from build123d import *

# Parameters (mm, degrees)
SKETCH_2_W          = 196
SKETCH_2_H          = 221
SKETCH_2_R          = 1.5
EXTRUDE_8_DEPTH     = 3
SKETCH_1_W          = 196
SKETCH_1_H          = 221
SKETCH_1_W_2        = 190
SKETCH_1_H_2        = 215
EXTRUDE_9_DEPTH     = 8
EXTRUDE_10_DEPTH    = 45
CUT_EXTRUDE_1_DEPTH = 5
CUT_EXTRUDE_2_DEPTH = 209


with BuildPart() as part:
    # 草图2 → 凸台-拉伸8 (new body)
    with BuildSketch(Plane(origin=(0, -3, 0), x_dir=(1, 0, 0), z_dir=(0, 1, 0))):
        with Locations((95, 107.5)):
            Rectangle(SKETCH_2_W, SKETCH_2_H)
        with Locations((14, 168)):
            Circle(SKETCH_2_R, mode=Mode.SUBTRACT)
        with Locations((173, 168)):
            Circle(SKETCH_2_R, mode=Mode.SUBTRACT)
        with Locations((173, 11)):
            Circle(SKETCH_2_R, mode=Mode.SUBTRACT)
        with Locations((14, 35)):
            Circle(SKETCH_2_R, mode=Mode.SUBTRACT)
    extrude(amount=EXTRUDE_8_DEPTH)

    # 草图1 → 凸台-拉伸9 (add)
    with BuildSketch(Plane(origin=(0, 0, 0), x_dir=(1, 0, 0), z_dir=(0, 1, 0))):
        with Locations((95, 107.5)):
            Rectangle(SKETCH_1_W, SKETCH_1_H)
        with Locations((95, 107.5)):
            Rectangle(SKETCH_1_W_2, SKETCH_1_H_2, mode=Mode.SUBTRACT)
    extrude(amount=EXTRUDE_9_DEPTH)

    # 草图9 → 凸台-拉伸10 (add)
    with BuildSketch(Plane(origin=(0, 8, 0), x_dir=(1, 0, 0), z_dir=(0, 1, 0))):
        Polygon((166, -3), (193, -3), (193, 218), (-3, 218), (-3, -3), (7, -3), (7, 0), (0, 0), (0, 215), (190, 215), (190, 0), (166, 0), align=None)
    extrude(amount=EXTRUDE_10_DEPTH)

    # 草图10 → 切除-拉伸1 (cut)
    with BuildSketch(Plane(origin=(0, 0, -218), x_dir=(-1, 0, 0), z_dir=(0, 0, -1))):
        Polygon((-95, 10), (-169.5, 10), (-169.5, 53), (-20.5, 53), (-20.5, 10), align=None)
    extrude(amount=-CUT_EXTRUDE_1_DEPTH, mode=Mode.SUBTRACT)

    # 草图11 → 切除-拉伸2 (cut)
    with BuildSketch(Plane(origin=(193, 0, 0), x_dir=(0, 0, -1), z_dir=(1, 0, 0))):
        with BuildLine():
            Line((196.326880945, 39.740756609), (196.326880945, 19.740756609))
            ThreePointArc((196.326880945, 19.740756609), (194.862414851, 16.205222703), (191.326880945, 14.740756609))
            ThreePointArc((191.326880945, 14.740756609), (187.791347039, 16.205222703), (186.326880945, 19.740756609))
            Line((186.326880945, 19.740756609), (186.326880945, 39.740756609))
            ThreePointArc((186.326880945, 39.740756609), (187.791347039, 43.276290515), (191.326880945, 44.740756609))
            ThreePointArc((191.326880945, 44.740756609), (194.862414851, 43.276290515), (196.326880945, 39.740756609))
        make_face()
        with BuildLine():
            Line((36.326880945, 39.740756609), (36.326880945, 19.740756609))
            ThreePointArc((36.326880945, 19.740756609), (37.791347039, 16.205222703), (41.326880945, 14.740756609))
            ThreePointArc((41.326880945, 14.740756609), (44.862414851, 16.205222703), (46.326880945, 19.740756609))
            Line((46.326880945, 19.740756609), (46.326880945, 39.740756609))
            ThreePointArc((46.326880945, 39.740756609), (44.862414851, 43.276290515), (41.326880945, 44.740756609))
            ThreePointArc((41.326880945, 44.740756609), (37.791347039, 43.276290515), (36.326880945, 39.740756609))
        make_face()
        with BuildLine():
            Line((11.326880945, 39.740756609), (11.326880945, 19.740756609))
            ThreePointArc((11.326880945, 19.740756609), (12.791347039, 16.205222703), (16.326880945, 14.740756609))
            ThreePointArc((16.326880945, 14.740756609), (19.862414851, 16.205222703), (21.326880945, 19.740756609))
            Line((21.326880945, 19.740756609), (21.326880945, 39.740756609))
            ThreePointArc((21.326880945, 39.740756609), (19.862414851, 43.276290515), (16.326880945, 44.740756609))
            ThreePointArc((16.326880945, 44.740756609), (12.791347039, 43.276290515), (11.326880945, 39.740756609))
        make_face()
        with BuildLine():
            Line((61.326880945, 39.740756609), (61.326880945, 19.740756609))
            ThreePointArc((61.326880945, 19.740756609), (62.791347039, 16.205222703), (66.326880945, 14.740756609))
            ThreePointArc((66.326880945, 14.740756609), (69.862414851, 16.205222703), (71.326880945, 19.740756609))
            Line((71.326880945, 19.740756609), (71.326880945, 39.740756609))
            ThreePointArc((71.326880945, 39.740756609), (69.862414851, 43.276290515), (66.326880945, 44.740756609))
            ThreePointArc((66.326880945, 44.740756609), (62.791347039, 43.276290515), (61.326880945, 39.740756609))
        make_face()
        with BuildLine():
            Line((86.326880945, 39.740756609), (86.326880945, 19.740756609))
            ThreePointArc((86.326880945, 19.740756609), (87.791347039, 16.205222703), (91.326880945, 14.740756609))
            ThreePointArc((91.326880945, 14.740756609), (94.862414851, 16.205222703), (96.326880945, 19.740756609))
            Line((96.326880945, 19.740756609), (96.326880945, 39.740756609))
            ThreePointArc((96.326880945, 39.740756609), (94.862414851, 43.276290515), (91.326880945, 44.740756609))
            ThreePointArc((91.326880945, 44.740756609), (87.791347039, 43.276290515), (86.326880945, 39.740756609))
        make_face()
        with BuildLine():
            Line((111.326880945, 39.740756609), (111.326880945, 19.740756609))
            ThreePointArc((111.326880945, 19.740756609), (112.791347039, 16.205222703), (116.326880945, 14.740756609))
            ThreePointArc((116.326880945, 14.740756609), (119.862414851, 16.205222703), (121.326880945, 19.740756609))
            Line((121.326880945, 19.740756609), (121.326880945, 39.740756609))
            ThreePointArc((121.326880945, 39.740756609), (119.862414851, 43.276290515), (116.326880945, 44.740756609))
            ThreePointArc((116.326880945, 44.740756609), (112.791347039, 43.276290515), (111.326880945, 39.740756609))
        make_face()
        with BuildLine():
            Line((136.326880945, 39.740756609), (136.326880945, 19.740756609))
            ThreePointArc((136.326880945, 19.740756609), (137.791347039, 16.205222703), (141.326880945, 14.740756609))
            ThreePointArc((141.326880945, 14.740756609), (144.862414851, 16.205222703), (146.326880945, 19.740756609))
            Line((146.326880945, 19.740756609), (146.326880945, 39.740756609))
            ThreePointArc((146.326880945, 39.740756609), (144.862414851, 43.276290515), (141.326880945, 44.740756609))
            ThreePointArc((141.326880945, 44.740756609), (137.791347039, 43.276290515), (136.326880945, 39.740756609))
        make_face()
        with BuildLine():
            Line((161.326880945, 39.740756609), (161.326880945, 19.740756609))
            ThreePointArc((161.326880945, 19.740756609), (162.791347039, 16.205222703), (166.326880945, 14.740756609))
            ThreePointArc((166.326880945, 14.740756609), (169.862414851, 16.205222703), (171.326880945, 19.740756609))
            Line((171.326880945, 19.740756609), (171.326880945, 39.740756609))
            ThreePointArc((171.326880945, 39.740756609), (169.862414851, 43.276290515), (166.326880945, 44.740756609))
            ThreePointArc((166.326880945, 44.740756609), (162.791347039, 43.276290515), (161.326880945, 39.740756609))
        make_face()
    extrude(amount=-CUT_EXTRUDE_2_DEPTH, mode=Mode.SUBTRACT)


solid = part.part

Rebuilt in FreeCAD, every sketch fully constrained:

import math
import FreeCAD as App
import Part
import Sketcher

V = App.Vector


def add_polygon(sketch, points):
    """Adds a closed chain of lines whose ends are joined by coincident constraints."""
    first, n = sketch.GeometryCount, len(points)
    for a, b in zip(points, points[1:] + points[:1]):
        sketch.addGeometry(Part.LineSegment(App.Vector(*a, 0), App.Vector(*b, 0)), False)
    for i in range(n):
        sketch.addConstraint(Sketcher.Constraint("Coincident", first + i, 2, first + (i + 1) % n, 1))

doc = App.newDocument("Part")
body = doc.addObject("PartDesign::Body", "Body")

# Sketch on XZ plane
sketch1 = doc.addObject("Sketcher::SketchObject", "Sketch")
body.addObject(sketch1)
sketch1.AttachmentSupport = (doc.XZ_Plane, [""])
sketch1.MapMode = "FlatFace"
sketch1.AttachmentOffset = App.Placement(V(0, 0, 3), App.Rotation())
add_polygon(sketch1, [(-3, -218), (-3, 3), (193, 3), (193, -218)])  # lines 0-3
sketch1.addGeometry(Part.Circle(V(14, -35, 0), V(0, 0, 1), 1.5), False)  # 4
sketch1.addGeometry(Part.Circle(V(173, -11, 0), V(0, 0, 1), 1.5), False)  # 5
sketch1.addGeometry(Part.Circle(V(14, -168, 0), V(0, 0, 1), 1.5), False)  # 6
sketch1.addGeometry(Part.Circle(V(173, -168, 0), V(0, 0, 1), 1.5), False)  # 7
sketch1.addConstraint([
    Sketcher.Constraint("Vertical", 0),
    Sketcher.Constraint("Horizontal", 1),
    Sketcher.Constraint("Vertical", 2),
    Sketcher.Constraint("Horizontal", 3),
    Sketcher.Constraint("Equal", 4, 5),
    Sketcher.Constraint("Equal", 5, 6),
    Sketcher.Constraint("Equal", 6, 7),
    Sketcher.Constraint("Horizontal", 6, 3, 7, 3),
    Sketcher.Constraint("Vertical", 4, 3, 6, 3),
    Sketcher.Constraint("Vertical", 5, 3, 7, 3),
    Sketcher.Constraint("Diameter", 4, 3.0),
    Sketcher.Constraint("DistanceX", 1, 1, 1, 2, 196.0),
    Sketcher.Constraint("DistanceY", 0, 1, 0, 2, 221.0),
    Sketcher.Constraint("DistanceX", -1, 1, 4, 3, 14.0),
    Sketcher.Constraint("DistanceY", 4, 3, -1, 1, 35.0),
    Sketcher.Constraint("DistanceX", -1, 1, 5, 3, 173.0),
    Sketcher.Constraint("DistanceY", 5, 3, -1, 1, 11.0),
    Sketcher.Constraint("DistanceY", 6, 3, -1, 1, 168.0),
    Sketcher.Constraint("DistanceX", 0, 2, -1, 1, 3.0),
    Sketcher.Constraint("DistanceY", -1, 1, 0, 2, 3.0),
])
pad1 = doc.addObject("PartDesign::Pad", "Pad")
body.addObject(pad1)
pad1.Profile = sketch1
pad1.Length = 3
pad1.Reversed = True

# Sketch on XZ plane
sketch2 = doc.addObject("Sketcher::SketchObject", "Sketch001")
body.addObject(sketch2)
sketch2.AttachmentSupport = (doc.XZ_Plane, [""])
sketch2.MapMode = "FlatFace"
add_polygon(sketch2, [(-3, -218), (-3, 3), (193, 3), (193, -218)])  # lines 0-3
add_polygon(sketch2, [(190, 0), (0, 0), (0, -215), (190, -215)])  # lines 4-7
sketch2.addConstraint([
    Sketcher.Constraint("Vertical", 0),
    Sketcher.Constraint("Horizontal", 1),
    Sketcher.Constraint("Vertical", 2),
    Sketcher.Constraint("Horizontal", 3),
    Sketcher.Constraint("Horizontal", 4),
    Sketcher.Constraint("Vertical", 5),
    Sketcher.Constraint("Horizontal", 6),
    Sketcher.Constraint("Vertical", 7),
    Sketcher.Constraint("Coincident", 4, 2, -1, 1),
    Sketcher.Constraint("DistanceX", 1, 1, 1, 2, 196.0),
    Sketcher.Constraint("DistanceX", 4, 2, 4, 1, 190.0),
    Sketcher.Constraint("DistanceY", 0, 1, 0, 2, 221.0),
    Sketcher.Constraint("DistanceY", 5, 2, 5, 1, 215.0),
    Sketcher.Constraint("DistanceX", 0, 2, -1, 1, 3.0),
    Sketcher.Constraint("DistanceY", -1, 1, 0, 2, 3.0),
])
pad2 = doc.addObject("PartDesign::Pad", "Pad001")
body.addObject(pad2)
pad2.Profile = sketch2
pad2.Length = 8
pad2.Reversed = True

# Sketch on XZ plane
sketch3 = doc.addObject("Sketcher::SketchObject", "Sketch002")
body.addObject(sketch3)
sketch3.AttachmentSupport = (doc.XZ_Plane, [""])
sketch3.MapMode = "FlatFace"
sketch3.AttachmentOffset = App.Placement(V(0, 0, -8), App.Rotation())
add_polygon(sketch3, [(166, 3), (193, 3), (193, -218), (-3, -218), (-3, 3), (7, 3), (7, 0), (0, 0), (0, -215), (190, -215), (190, 0), (166, 0)])  # lines 0-11
sketch3.addConstraint([
    Sketcher.Constraint("Horizontal", 0),
    Sketcher.Constraint("Vertical", 1),
    Sketcher.Constraint("Horizontal", 2),
    Sketcher.Constraint("Vertical", 3),
    Sketcher.Constraint("Horizontal", 4),
    Sketcher.Constraint("Vertical", 5),
    Sketcher.Constraint("Horizontal", 6),
    Sketcher.Constraint("Vertical", 7),
    Sketcher.Constraint("Horizontal", 8),
    Sketcher.Constraint("Vertical", 9),
    Sketcher.Constraint("Horizontal", 10),
    Sketcher.Constraint("Vertical", 11),
    Sketcher.Constraint("Coincident", 6, 2, -1, 1),
    Sketcher.Constraint("PointOnObject", 9, 2, -1),
    Sketcher.Constraint("Horizontal", 0, 2, 3, 2),
    Sketcher.Constraint("DistanceX", 0, 1, 0, 2, 27.0),
    Sketcher.Constraint("DistanceX", 2, 2, 2, 1, 196.0),
    Sketcher.Constraint("DistanceX", 4, 1, 4, 2, 10.0),
    Sketcher.Constraint("DistanceX", 6, 2, 6, 1, 7.0),
    Sketcher.Constraint("DistanceX", 8, 1, 8, 2, 190.0),
    Sketcher.Constraint("DistanceY", 1, 2, 1, 1, 221.0),
    Sketcher.Constraint("DistanceY", 5, 2, 5, 1, 3.0),
    Sketcher.Constraint("DistanceY", 7, 2, 7, 1, 215.0),
])
pad3 = doc.addObject("PartDesign::Pad", "Pad002")
body.addObject(pad3)
pad3.Profile = sketch3
pad3.Length = 45
pad3.Reversed = True

# Sketch on XY plane
sketch4 = doc.addObject("Sketcher::SketchObject", "Sketch003")
body.addObject(sketch4)
sketch4.AttachmentSupport = (doc.XY_Plane, [""])
sketch4.MapMode = "FlatFace"
sketch4.AttachmentOffset = App.Placement(V(0, 0, -218), App.Rotation())
add_polygon(sketch4, [(170, 10), (20, 10), (20, 53), (170, 53)])  # lines 0-3
sketch4.addConstraint([
    Sketcher.Constraint("Horizontal", 0),
    Sketcher.Constraint("Vertical", 1),
    Sketcher.Constraint("Horizontal", 2),
    Sketcher.Constraint("Vertical", 3),
    Sketcher.Constraint("DistanceX", 0, 2, 0, 1, 149.0),
    Sketcher.Constraint("DistanceY", 1, 1, 1, 2, 43.0),
    Sketcher.Constraint("DistanceY", -1, 1, 0, 2, 10.0),
    Sketcher.Constraint("DistanceX", -1, 1, 0, 2, 20.5),
])
pocket1 = doc.addObject("PartDesign::Pocket", "Pocket")
body.addObject(pocket1)
pocket1.Profile = sketch4
pocket1.Length = 5
pocket1.Reversed = True

# Sketch on YZ plane
sketch5 = doc.addObject("Sketcher::SketchObject", "Sketch004")
body.addObject(sketch5)
sketch5.AttachmentSupport = (doc.YZ_Plane, [""])
sketch5.MapMode = "FlatFace"
sketch5.AttachmentOffset = App.Placement(V(0, 0, 193), App.Rotation())
sketch5.addGeometry([
    Part.LineSegment(V(20, -196, 0), V(40, -196, 0)),  # 0
    Part.ArcOfCircle(Part.Circle(V(40, -191, 0), V(0, 0, 1), 5), math.radians(-90), math.radians(0)),  # 1
    Part.ArcOfCircle(Part.Circle(V(40, -191, 0), V(0, 0, 1), 5), math.radians(0), math.radians(90)),  # 2
    Part.LineSegment(V(40, -186, 0), V(20, -186, 0)),  # 3
    Part.ArcOfCircle(Part.Circle(V(20, -191, 0), V(0, 0, 1), 5), math.radians(90), math.radians(180)),  # 4
    Part.ArcOfCircle(Part.Circle(V(20, -191, 0), V(0, 0, 1), 5), math.radians(180), math.radians(270)),  # 5
    Part.LineSegment(V(40, -36, 0), V(20, -36, 0)),  # 6
    Part.ArcOfCircle(Part.Circle(V(20, -41, 0), V(0, 0, 1), 5), math.radians(90), math.radians(180)),  # 7
    Part.ArcOfCircle(Part.Circle(V(20, -41, 0), V(0, 0, 1), 5), math.radians(180), math.radians(270)),  # 8
    Part.LineSegment(V(20, -46, 0), V(40, -46, 0)),  # 9
    Part.ArcOfCircle(Part.Circle(V(40, -41, 0), V(0, 0, 1), 5), math.radians(-90), math.radians(0)),  # 10
    Part.ArcOfCircle(Part.Circle(V(40, -41, 0), V(0, 0, 1), 5), math.radians(0), math.radians(90)),  # 11
    Part.LineSegment(V(40, -11, 0), V(20, -11, 0)),  # 12
    Part.ArcOfCircle(Part.Circle(V(20, -16, 0), V(0, 0, 1), 5), math.radians(90), math.radians(180)),  # 13
    Part.ArcOfCircle(Part.Circle(V(20, -16, 0), V(0, 0, 1), 5), math.radians(180), math.radians(270)),  # 14
    Part.LineSegment(V(20, -21, 0), V(40, -21, 0)),  # 15
    Part.ArcOfCircle(Part.Circle(V(40, -16, 0), V(0, 0, 1), 5), math.radians(-90), math.radians(0)),  # 16
    Part.ArcOfCircle(Part.Circle(V(40, -16, 0), V(0, 0, 1), 5), math.radians(0), math.radians(90)),  # 17
    Part.LineSegment(V(40, -61, 0), V(20, -61, 0)),  # 18
    Part.ArcOfCircle(Part.Circle(V(20, -66, 0), V(0, 0, 1), 5), math.radians(90), math.radians(180)),  # 19
    Part.ArcOfCircle(Part.Circle(V(20, -66, 0), V(0, 0, 1), 5), math.radians(180), math.radians(270)),  # 20
    Part.LineSegment(V(20, -71, 0), V(40, -71, 0)),  # 21
    Part.ArcOfCircle(Part.Circle(V(40, -66, 0), V(0, 0, 1), 5), math.radians(-90), math.radians(0)),  # 22
    Part.ArcOfCircle(Part.Circle(V(40, -66, 0), V(0, 0, 1), 5), math.radians(0), math.radians(90)),  # 23
    Part.LineSegment(V(40, -86, 0), V(20, -86, 0)),  # 24
    Part.ArcOfCircle(Part.Circle(V(20, -91, 0), V(0, 0, 1), 5), math.radians(90), math.radians(180)),  # 25
    Part.ArcOfCircle(Part.Circle(V(20, -91, 0), V(0, 0, 1), 5), math.radians(180), math.radians(270)),  # 26
    Part.LineSegment(V(20, -96, 0), V(40, -96, 0)),  # 27
    Part.ArcOfCircle(Part.Circle(V(40, -91, 0), V(0, 0, 1), 5), math.radians(-90), math.radians(0)),  # 28
    Part.ArcOfCircle(Part.Circle(V(40, -91, 0), V(0, 0, 1), 5), math.radians(0), math.radians(90)),  # 29
    Part.LineSegment(V(40, -111, 0), V(20, -111, 0)),  # 30
    Part.ArcOfCircle(Part.Circle(V(20, -116, 0), V(0, 0, 1), 5), math.radians(90), math.radians(180)),  # 31
    Part.ArcOfCircle(Part.Circle(V(20, -116, 0), V(0, 0, 1), 5), math.radians(180), math.radians(270)),  # 32
    Part.LineSegment(V(20, -121, 0), V(40, -121, 0)),  # 33
    Part.ArcOfCircle(Part.Circle(V(40, -116, 0), V(0, 0, 1), 5), math.radians(-90), math.radians(0)),  # 34
    Part.ArcOfCircle(Part.Circle(V(40, -116, 0), V(0, 0, 1), 5), math.radians(0), math.radians(90)),  # 35
    Part.LineSegment(V(40, -136, 0), V(20, -136, 0)),  # 36
    Part.ArcOfCircle(Part.Circle(V(20, -141, 0), V(0, 0, 1), 5), math.radians(90), math.radians(180)),  # 37
    Part.ArcOfCircle(Part.Circle(V(20, -141, 0), V(0, 0, 1), 5), math.radians(180), math.radians(270)),  # 38
    Part.LineSegment(V(20, -146, 0), V(40, -146, 0)),  # 39
    Part.ArcOfCircle(Part.Circle(V(40, -141, 0), V(0, 0, 1), 5), math.radians(-90), math.radians(0)),  # 40
    Part.ArcOfCircle(Part.Circle(V(40, -141, 0), V(0, 0, 1), 5), math.radians(0), math.radians(90)),  # 41
    Part.LineSegment(V(40, -161, 0), V(20, -161, 0)),  # 42
    Part.ArcOfCircle(Part.Circle(V(20, -166, 0), V(0, 0, 1), 5), math.radians(90), math.radians(180)),  # 43
    Part.ArcOfCircle(Part.Circle(V(20, -166, 0), V(0, 0, 1), 5), math.radians(180), math.radians(270)),  # 44
    Part.LineSegment(V(20, -171, 0), V(40, -171, 0)),  # 45
    Part.ArcOfCircle(Part.Circle(V(40, -166, 0), V(0, 0, 1), 5), math.radians(-90), math.radians(0)),  # 46
    Part.ArcOfCircle(Part.Circle(V(40, -166, 0), V(0, 0, 1), 5), math.radians(0), math.radians(90)),  # 47
], False)
sketch5.addConstraint([
    Sketcher.Constraint("Tangent", 0, 2, 1, 1),
    Sketcher.Constraint("Tangent", 1, 2, 2, 1),
    Sketcher.Constraint("Tangent", 2, 2, 3, 1),
    Sketcher.Constraint("Tangent", 3, 2, 4, 1),
    Sketcher.Constraint("Tangent", 4, 2, 5, 1),
    Sketcher.Constraint("Tangent", 5, 2, 0, 1),
    Sketcher.Constraint("Tangent", 6, 2, 7, 1),
    Sketcher.Constraint("Tangent", 7, 2, 8, 1),
    Sketcher.Constraint("Tangent", 8, 2, 9, 1),
    Sketcher.Constraint("Tangent", 9, 2, 10, 1),
    Sketcher.Constraint("Tangent", 10, 2, 11, 1),
    Sketcher.Constraint("Tangent", 11, 2, 6, 1),
    Sketcher.Constraint("Tangent", 12, 2, 13, 1),
    Sketcher.Constraint("Tangent", 13, 2, 14, 1),
    Sketcher.Constraint("Tangent", 14, 2, 15, 1),
    Sketcher.Constraint("Tangent", 15, 2, 16, 1),
    Sketcher.Constraint("Tangent", 16, 2, 17, 1),
    Sketcher.Constraint("Tangent", 17, 2, 12, 1),
    Sketcher.Constraint("Tangent", 18, 2, 19, 1),
    Sketcher.Constraint("Tangent", 19, 2, 20, 1),
    Sketcher.Constraint("Tangent", 20, 2, 21, 1),
    Sketcher.Constraint("Tangent", 21, 2, 22, 1),
    Sketcher.Constraint("Tangent", 22, 2, 23, 1),
    Sketcher.Constraint("Tangent", 23, 2, 18, 1),
    Sketcher.Constraint("Tangent", 24, 2, 25, 1),
    Sketcher.Constraint("Tangent", 25, 2, 26, 1),
    Sketcher.Constraint("Tangent", 26, 2, 27, 1),
    Sketcher.Constraint("Tangent", 27, 2, 28, 1),
    Sketcher.Constraint("Tangent", 28, 2, 29, 1),
    Sketcher.Constraint("Tangent", 29, 2, 24, 1),
    Sketcher.Constraint("Tangent", 30, 2, 31, 1),
    Sketcher.Constraint("Tangent", 31, 2, 32, 1),
    Sketcher.Constraint("Tangent", 32, 2, 33, 1),
    Sketcher.Constraint("Tangent", 33, 2, 34, 1),
    Sketcher.Constraint("Tangent", 34, 2, 35, 1),
    Sketcher.Constraint("Tangent", 35, 2, 30, 1),
    Sketcher.Constraint("Tangent", 36, 2, 37, 1),
    Sketcher.Constraint("Tangent", 37, 2, 38, 1),
    Sketcher.Constraint("Tangent", 38, 2, 39, 1),
    Sketcher.Constraint("Tangent", 39, 2, 40, 1),
    Sketcher.Constraint("Tangent", 40, 2, 41, 1),
    Sketcher.Constraint("Tangent", 41, 2, 36, 1),
    Sketcher.Constraint("Tangent", 42, 2, 43, 1),
    Sketcher.Constraint("Tangent", 43, 2, 44, 1),
    Sketcher.Constraint("Tangent", 44, 2, 45, 1),
    Sketcher.Constraint("Tangent", 45, 2, 46, 1),
    Sketcher.Constraint("Tangent", 46, 2, 47, 1),
    Sketcher.Constraint("Tangent", 47, 2, 42, 1),
    Sketcher.Constraint("Horizontal", 0),
    Sketcher.Constraint("Horizontal", 3),
    Sketcher.Constraint("Horizontal", 6),
    Sketcher.Constraint("Horizontal", 9),
    Sketcher.Constraint("Horizontal", 12),
    Sketcher.Constraint("Horizontal", 15),
    Sketcher.Constraint("Horizontal", 18),
    Sketcher.Constraint("Horizontal", 21),
    Sketcher.Constraint("Horizontal", 24),
    Sketcher.Constraint("Horizontal", 27),
    Sketcher.Constraint("Horizontal", 30),
    Sketcher.Constraint("Horizontal", 33),
    Sketcher.Constraint("Horizontal", 36),
    Sketcher.Constraint("Horizontal", 39),
    Sketcher.Constraint("Horizontal", 42),
    Sketcher.Constraint("Horizontal", 45),
    Sketcher.Constraint("Equal", 1, 2),
    Sketcher.Constraint("Equal", 2, 4),
    Sketcher.Constraint("Equal", 5, 7),
    Sketcher.Constraint("Equal", 7, 8),
    Sketcher.Constraint("Equal", 8, 10),
    Sketcher.Constraint("Equal", 11, 13),
    Sketcher.Constraint("Equal", 13, 14),
    Sketcher.Constraint("Equal", 14, 16),
    Sketcher.Constraint("Equal", 17, 19),
    Sketcher.Constraint("Equal", 19, 20),
    Sketcher.Constraint("Equal", 20, 22),
    Sketcher.Constraint("Equal", 23, 25),
    Sketcher.Constraint("Equal", 25, 26),
    Sketcher.Constraint("Equal", 26, 28),
    Sketcher.Constraint("Equal", 29, 31),
    Sketcher.Constraint("Equal", 31, 32),
    Sketcher.Constraint("Equal", 32, 34),
    Sketcher.Constraint("Equal", 35, 37),
    Sketcher.Constraint("Equal", 37, 38),
    Sketcher.Constraint("Equal", 38, 40),
    Sketcher.Constraint("Equal", 41, 43),
    Sketcher.Constraint("Equal", 43, 44),
    Sketcher.Constraint("Equal", 44, 46),
    Sketcher.Constraint("Horizontal", 5, 3, 1, 2),
    Sketcher.Constraint("Horizontal", 1, 2, 4, 2),
    Sketcher.Constraint("Horizontal", 11, 3, 7, 2),
    Sketcher.Constraint("Horizontal", 7, 2, 10, 2),
    Sketcher.Constraint("Horizontal", 17, 3, 13, 2),
    Sketcher.Constraint("Horizontal", 13, 2, 16, 2),
    Sketcher.Constraint("Horizontal", 23, 3, 19, 2),
    Sketcher.Constraint("Horizontal", 19, 2, 22, 2),
    Sketcher.Constraint("Horizontal", 29, 3, 25, 2),
    Sketcher.Constraint("Horizontal", 25, 2, 28, 2),
    Sketcher.Constraint("Horizontal", 35, 3, 31, 2),
    Sketcher.Constraint("Horizontal", 31, 2, 34, 2),
    Sketcher.Constraint("Horizontal", 41, 3, 37, 2),
    Sketcher.Constraint("Horizontal", 37, 2, 40, 2),
    Sketcher.Constraint("Horizontal", 47, 3, 43, 2),
    Sketcher.Constraint("Horizontal", 43, 2, 46, 2),
    Sketcher.Constraint("Vertical", 5, 3, 7, 3),
    Sketcher.Constraint("Vertical", 2, 3, 10, 3),
    Sketcher.Constraint("Vertical", 8, 3, 13, 3),
    Sketcher.Constraint("Vertical", 11, 3, 16, 3),
    Sketcher.Constraint("Vertical", 14, 3, 19, 3),
    Sketcher.Constraint("Vertical", 17, 3, 22, 3),
    Sketcher.Constraint("Vertical", 20, 3, 25, 3),
    Sketcher.Constraint("Vertical", 23, 3, 28, 3),
    Sketcher.Constraint("Vertical", 26, 3, 31, 3),
    Sketcher.Constraint("Vertical", 29, 3, 34, 3),
    Sketcher.Constraint("Vertical", 32, 3, 37, 3),
    Sketcher.Constraint("Vertical", 35, 3, 40, 3),
    Sketcher.Constraint("Vertical", 38, 3, 43, 3),
    Sketcher.Constraint("Vertical", 41, 3, 46, 3),
    Sketcher.Constraint("Radius", 1, 5.0),
    Sketcher.Constraint("DistanceX", 0, 1, 0, 2, 20.0),
    Sketcher.Constraint("DistanceY", 1, 3, -1, 1, 191.326881),
    Sketcher.Constraint("DistanceY", 7, 3, -1, 1, 41.326881),
    Sketcher.Constraint("DistanceY", 13, 3, -1, 1, 16.326881),
    Sketcher.Constraint("DistanceY", 19, 3, -1, 1, 66.326881),
    Sketcher.Constraint("DistanceY", 25, 3, -1, 1, 91.326881),
    Sketcher.Constraint("DistanceY", 31, 3, -1, 1, 116.326881),
    Sketcher.Constraint("DistanceY", 37, 3, -1, 1, 141.326881),
    Sketcher.Constraint("DistanceY", 43, 3, -1, 1, 166.326881),
    Sketcher.Constraint("DistanceX", -1, 1, 1, 3, 39.740757),
])
pocket2 = doc.addObject("PartDesign::Pocket", "Pocket001")
body.addObject(pocket2)
pocket2.Profile = sketch5
pocket2.Length = 209

doc.recompute()
